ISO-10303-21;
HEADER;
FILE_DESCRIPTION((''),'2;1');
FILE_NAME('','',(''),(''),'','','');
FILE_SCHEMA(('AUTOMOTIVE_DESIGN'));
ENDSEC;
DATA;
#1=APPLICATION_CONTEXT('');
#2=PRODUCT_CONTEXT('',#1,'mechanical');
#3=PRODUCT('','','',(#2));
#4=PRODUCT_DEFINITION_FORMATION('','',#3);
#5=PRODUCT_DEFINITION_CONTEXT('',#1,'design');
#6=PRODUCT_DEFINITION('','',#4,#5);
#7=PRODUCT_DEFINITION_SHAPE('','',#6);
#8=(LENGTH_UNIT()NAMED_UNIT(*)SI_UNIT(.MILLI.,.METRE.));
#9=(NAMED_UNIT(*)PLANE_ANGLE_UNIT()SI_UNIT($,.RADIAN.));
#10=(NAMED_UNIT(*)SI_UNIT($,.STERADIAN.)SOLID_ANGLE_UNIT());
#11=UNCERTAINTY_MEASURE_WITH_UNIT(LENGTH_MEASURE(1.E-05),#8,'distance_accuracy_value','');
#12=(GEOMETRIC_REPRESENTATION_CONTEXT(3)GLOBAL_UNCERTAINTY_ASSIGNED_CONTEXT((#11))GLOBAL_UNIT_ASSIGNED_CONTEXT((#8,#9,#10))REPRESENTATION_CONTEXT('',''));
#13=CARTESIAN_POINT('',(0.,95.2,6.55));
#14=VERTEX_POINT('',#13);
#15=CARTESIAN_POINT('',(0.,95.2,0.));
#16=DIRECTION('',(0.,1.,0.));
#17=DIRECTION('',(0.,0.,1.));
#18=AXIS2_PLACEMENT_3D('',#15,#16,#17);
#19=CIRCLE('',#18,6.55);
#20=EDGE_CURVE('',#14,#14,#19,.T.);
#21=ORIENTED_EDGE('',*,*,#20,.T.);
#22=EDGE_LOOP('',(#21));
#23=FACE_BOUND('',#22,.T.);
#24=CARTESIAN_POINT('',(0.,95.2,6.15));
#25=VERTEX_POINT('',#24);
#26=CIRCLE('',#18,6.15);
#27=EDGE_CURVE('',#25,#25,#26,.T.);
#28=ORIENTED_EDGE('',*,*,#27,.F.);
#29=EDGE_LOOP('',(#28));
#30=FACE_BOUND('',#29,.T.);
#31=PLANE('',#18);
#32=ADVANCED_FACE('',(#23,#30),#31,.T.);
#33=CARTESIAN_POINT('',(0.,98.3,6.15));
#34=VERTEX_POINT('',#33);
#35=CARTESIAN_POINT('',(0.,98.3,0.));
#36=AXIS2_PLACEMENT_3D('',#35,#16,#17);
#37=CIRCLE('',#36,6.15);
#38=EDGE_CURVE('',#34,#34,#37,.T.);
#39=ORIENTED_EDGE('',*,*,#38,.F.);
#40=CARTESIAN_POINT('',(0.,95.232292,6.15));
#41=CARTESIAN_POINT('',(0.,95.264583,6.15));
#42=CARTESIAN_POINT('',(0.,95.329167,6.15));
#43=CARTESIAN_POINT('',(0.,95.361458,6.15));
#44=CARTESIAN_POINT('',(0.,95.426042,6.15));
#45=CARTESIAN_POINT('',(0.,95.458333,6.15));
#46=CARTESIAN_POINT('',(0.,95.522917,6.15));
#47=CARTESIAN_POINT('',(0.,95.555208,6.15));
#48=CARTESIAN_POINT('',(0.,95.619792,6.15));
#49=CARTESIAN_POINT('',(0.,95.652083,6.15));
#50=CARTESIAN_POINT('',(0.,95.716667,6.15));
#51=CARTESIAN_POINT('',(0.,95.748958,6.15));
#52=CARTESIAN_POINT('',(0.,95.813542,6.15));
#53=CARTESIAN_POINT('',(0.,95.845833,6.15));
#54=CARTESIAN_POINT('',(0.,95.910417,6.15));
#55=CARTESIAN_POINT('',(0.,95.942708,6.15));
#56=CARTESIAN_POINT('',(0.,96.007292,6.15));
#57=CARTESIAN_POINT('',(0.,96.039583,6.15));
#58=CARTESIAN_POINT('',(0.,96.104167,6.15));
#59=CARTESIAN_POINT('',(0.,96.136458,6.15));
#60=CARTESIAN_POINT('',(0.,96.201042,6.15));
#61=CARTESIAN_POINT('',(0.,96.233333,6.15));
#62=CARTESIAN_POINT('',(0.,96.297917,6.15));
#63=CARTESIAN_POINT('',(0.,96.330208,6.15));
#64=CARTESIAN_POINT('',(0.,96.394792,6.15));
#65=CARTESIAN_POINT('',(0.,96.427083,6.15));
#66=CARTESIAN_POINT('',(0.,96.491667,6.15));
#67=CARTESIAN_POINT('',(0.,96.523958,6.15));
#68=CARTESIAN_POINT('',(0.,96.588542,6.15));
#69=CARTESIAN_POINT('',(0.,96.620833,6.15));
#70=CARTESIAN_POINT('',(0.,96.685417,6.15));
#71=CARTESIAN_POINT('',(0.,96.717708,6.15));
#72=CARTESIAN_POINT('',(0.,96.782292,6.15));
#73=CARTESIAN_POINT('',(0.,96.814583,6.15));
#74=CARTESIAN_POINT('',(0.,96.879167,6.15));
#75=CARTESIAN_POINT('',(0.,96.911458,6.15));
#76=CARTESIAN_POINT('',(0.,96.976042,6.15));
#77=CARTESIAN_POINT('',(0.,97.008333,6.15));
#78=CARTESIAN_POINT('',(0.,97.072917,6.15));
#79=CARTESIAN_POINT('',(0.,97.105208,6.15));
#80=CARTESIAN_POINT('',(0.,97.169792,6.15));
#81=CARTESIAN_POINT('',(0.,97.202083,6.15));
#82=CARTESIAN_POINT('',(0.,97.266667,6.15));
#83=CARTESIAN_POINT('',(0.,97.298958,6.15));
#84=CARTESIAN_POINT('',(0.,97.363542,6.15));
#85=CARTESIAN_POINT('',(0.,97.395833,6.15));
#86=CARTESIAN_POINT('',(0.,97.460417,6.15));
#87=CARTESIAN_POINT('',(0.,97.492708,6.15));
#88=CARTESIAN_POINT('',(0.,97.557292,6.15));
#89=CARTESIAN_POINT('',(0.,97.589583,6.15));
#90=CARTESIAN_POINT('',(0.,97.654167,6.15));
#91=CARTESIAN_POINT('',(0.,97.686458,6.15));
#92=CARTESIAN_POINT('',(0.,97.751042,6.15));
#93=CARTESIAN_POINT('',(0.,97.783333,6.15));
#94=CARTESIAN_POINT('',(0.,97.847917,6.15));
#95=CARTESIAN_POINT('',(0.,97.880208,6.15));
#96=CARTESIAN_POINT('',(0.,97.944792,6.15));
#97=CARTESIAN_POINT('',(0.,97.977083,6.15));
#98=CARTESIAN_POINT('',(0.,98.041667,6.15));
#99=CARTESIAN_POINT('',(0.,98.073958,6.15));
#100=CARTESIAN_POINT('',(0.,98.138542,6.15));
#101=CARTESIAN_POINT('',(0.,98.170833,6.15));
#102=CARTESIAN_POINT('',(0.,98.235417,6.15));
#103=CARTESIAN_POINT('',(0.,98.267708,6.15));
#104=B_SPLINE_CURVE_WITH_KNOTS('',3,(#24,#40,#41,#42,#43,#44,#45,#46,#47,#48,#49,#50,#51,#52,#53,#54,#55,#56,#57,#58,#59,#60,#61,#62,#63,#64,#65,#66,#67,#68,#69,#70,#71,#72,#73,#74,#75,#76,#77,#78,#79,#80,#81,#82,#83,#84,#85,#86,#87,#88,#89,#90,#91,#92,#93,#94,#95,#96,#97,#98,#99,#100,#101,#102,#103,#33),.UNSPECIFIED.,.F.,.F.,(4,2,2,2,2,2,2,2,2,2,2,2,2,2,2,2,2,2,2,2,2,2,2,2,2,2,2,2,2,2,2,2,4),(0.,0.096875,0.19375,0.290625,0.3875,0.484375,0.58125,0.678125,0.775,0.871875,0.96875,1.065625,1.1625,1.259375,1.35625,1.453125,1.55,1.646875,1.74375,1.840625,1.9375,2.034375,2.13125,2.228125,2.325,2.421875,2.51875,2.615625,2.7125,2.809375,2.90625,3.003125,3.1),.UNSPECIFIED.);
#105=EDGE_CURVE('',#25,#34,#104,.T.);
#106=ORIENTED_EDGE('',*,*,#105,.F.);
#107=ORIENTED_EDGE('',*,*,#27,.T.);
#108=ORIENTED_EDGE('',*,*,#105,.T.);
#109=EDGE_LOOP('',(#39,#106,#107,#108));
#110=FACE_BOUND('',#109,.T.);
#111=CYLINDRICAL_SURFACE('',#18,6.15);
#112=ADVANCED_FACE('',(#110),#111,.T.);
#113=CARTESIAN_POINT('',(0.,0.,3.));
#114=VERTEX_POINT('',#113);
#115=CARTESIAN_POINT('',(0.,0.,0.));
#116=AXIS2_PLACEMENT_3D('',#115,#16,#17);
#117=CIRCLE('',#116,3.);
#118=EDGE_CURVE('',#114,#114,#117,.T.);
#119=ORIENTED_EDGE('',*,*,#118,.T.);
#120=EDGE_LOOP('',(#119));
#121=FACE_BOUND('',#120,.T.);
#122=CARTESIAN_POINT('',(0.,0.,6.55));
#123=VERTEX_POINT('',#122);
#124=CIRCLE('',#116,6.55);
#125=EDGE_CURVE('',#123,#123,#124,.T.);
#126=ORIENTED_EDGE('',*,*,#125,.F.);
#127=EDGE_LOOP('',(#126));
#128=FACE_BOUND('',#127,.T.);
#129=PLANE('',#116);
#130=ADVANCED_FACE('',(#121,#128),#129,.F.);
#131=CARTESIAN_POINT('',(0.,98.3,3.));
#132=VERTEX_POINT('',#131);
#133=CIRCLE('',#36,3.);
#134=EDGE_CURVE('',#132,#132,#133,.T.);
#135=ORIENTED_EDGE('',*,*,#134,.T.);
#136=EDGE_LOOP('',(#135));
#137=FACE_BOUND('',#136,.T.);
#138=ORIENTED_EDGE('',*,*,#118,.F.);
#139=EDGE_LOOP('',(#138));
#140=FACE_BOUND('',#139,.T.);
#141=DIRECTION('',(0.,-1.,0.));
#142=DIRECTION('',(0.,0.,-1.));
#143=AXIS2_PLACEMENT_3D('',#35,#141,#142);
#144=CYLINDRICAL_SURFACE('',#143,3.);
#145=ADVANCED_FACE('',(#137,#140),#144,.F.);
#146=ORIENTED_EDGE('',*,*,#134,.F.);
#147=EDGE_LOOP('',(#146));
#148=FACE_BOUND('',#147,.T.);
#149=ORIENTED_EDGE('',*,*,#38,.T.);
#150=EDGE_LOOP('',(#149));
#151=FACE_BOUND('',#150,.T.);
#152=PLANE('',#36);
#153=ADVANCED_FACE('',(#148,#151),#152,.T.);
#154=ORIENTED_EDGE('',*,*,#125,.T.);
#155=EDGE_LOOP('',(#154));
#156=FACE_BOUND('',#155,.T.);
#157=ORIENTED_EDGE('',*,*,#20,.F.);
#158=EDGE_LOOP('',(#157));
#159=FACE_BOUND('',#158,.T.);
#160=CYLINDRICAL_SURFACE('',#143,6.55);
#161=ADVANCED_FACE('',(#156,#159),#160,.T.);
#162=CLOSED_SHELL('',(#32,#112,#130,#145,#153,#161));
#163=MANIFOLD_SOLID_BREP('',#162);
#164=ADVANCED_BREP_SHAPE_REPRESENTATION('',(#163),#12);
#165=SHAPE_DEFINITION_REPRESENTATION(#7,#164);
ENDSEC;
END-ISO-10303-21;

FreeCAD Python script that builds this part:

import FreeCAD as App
import Part
import Sketcher
from FreeCAD import Vector

doc = App.newDocument("Part")
body = doc.addObject("PartDesign::Body", "Body")

# Sketch on XZ plane
sketch1 = doc.addObject("Sketcher::SketchObject", "Sketch")
body.addObject(sketch1)
sketch1.AttachmentSupport = (doc.XZ_Plane, [""])
sketch1.MapMode = "FlatFace"
sketch1.addGeometry(Part.Circle(Vector(0, 0, 0), Vector(0, 0, 1), 6.5), False)
sketch1.addGeometry(Part.Circle(Vector(0, 0, 0), Vector(0, 0, 1), 3), False)
sketch1.addConstraint(Sketcher.Constraint("Coincident", 0, 3, -1, 1))
sketch1.addConstraint(Sketcher.Constraint("Coincident", 1, 3, -1, 1))
sketch1.addConstraint(Sketcher.Constraint("Diameter", 1, 6.0))
sketch1.addConstraint(Sketcher.Constraint("Diameter", 0, 13.1))
pad1 = doc.addObject("PartDesign::Pad", "Pad")
body.addObject(pad1)
pad1.Profile = sketch1
pad1.Length = 98.3
pad1.Reversed = True

# Sketch on XZ plane
sketch2 = doc.addObject("Sketcher::SketchObject", "Sketch001")
body.addObject(sketch2)
sketch2.AttachmentSupport = (doc.XZ_Plane, [""])
sketch2.MapMode = "FlatFace"
sketch2.AttachmentOffset = App.Placement(Vector(0, 0, -95.2), App.Rotation())
sketch2.addGeometry(Part.Circle(Vector(0, 0, 0), Vector(0, 0, 1), 7), False)
sketch2.addGeometry(Part.Circle(Vector(0, 0, 0), Vector(0, 0, 1), 6), False)
sketch2.addConstraint(Sketcher.Constraint("Coincident", 0, 3, -1, 1))
sketch2.addConstraint(Sketcher.Constraint("Coincident", 1, 3, -1, 1))
sketch2.addConstraint(Sketcher.Constraint("Diameter", 0, 13.1))
sketch2.addConstraint(Sketcher.Constraint("Diameter", 1, 12.3))
pocket1 = doc.addObject("PartDesign::Pocket", "Pocket")
body.addObject(pocket1)
pocket1.Profile = sketch2
pocket1.Length = 3.1

doc.recompute()
